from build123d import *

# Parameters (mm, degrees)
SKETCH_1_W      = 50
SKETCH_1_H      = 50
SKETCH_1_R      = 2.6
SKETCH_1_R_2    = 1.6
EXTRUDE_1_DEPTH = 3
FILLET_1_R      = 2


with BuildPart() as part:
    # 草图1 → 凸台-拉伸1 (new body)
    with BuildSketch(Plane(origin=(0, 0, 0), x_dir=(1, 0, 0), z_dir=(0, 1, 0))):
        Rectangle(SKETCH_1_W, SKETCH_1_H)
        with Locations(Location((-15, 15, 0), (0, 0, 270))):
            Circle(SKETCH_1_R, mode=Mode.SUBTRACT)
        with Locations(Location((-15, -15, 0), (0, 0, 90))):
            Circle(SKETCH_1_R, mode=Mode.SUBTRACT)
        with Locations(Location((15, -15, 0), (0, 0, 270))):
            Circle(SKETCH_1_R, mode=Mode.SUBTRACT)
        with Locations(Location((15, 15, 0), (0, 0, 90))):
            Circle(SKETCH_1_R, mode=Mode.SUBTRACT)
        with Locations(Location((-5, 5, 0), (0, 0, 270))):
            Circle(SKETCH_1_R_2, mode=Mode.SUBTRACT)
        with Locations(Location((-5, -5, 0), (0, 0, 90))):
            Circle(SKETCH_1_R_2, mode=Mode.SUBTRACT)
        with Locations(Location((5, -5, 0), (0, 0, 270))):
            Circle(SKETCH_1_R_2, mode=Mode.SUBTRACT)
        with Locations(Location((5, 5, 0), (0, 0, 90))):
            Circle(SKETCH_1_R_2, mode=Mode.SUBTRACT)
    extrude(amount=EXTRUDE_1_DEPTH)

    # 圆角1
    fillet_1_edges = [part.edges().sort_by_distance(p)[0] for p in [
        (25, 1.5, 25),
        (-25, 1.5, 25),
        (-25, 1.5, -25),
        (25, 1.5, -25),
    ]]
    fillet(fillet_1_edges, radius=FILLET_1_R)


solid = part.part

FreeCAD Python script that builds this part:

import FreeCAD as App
import Part
import Sketcher

V = App.Vector
Q = App.Units.Quantity


def edges_at(feature, points):
    """Names of the edges that pass closest to the given points."""
    edges = feature.Shape.Edges
    near = lambda p: min(range(len(edges)), key=lambda i: edges[i].distToShape(Part.Vertex(*p))[0])
    return sorted({f"Edge{near(p) + 1}" for p in points})


def add_polygon(sketch, points):
    """Adds a closed chain of lines whose ends are joined by coincident constraints."""
    first, n = sketch.GeometryCount, len(points)
    for a, b in zip(points, points[1:] + points[:1]):
        sketch.addGeometry(Part.LineSegment(App.Vector(*a, 0), App.Vector(*b, 0)), False)
    for i in range(n):
        sketch.addConstraint(Sketcher.Constraint("Coincident", first + i, 2, first + (i + 1) % n, 1))

doc = App.newDocument("Part")
body = doc.addObject("PartDesign::Body", "Body")

sketch1 = body.newObject("Sketcher::SketchObject", "Sketch")
sketch1.AttachmentSupport = (doc.getObject("XZ_Plane"), [""])
sketch1.MapMode = "FlatFace"
add_polygon(sketch1, [(-25, -25), (-25, 25), (25, 25), (25, -25)])
sketch1.addGeometry(Part.Circle(V(-15, 15, 0), V(0, 0, 1), 2.6), False)
sketch1.addGeometry(Part.Circle(V(-5, 5, 0), V(0, 0, 1), 1.6), False)
sketch1.addGeometry(Part.Circle(V(15, 15, 0), V(0, 0, 1), 2.6), False)
sketch1.addGeometry(Part.Circle(V(5, 5, 0), V(0, 0, 1), 1.6), False)
sketch1.addGeometry(Part.Circle(V(-5, -5, 0), V(0, 0, 1), 1.6), False)
sketch1.addGeometry(Part.Circle(V(-15, -15, 0), V(0, 0, 1), 2.6), False)
sketch1.addGeometry(Part.Circle(V(5, -5, 0), V(0, 0, 1), 1.6), False)
sketch1.addGeometry(Part.Circle(V(15, -15, 0), V(0, 0, 1), 2.6), False)
sketch1.addConstraint([
    Sketcher.Constraint("Vertical", 0),
    Sketcher.Constraint("Horizontal", 1),
    Sketcher.Constraint("Vertical", 2),
    Sketcher.Constraint("Horizontal", 3),
    Sketcher.Constraint("Equal", 4, 6),
    Sketcher.Constraint("Equal", 5, 7),
    Sketcher.Constraint("Equal", 7, 8),
    Sketcher.Constraint("Equal", 6, 9),
    Sketcher.Constraint("Equal", 8, 10),
    Sketcher.Constraint("Equal", 9, 11),
    Sketcher.Constraint("Symmetric", 7, 3, 8, 3, -1, 1),
    Sketcher.Constraint("Symmetric", 6, 3, 9, 3, -1, 1),
    Sketcher.Constraint("Symmetric", 5, 3, 10, 3, -1, 1),
    Sketcher.Constraint("Symmetric", 4, 3, 11, 3, -1, 1),
    Sketcher.Constraint("Symmetric", 0, 2, 2, 2, -1, 1),
    Sketcher.Constraint("Symmetric", 4, 3, 6, 3, -2),
    Sketcher.Constraint("Symmetric", 5, 3, 7, 3, -2),
    Sketcher.Constraint("Equal", 3, 0),
    Sketcher.Constraint("Diameter", 4, Q("5.2 mm")),
    Sketcher.Constraint("Diameter", 5, Q("3.2 mm")),
    Sketcher.Constraint("DistanceX", 1, 1, 1, 2, Q("50 mm")),
    Sketcher.Constraint("DistanceX", 4, 3, -1, 1, Q("15 mm")),
    Sketcher.Constraint("DistanceY", -1, 1, 4, 3, Q("15 mm")),
    Sketcher.Constraint("DistanceX", 5, 3, -1, 1, Q("5 mm")),
    Sketcher.Constraint("DistanceY", -1, 1, 5, 3, Q("5 mm")),
])
pad1 = body.newObject("PartDesign::Pad", "Pad")
pad1.Profile = sketch1
pad1.Length = 3
pad1.Reversed = True
doc.recompute()

fillet = body.newObject("PartDesign::Fillet", "Fillet")
fillet.Base = (pad1, edges_at(pad1, [
    (25, 1.5, 25),
    (-25, 1.5, 25),
    (-25, 1.5, -25),
    (25, 1.5, -25),
]))
fillet.Radius = 2

doc.recompute()
